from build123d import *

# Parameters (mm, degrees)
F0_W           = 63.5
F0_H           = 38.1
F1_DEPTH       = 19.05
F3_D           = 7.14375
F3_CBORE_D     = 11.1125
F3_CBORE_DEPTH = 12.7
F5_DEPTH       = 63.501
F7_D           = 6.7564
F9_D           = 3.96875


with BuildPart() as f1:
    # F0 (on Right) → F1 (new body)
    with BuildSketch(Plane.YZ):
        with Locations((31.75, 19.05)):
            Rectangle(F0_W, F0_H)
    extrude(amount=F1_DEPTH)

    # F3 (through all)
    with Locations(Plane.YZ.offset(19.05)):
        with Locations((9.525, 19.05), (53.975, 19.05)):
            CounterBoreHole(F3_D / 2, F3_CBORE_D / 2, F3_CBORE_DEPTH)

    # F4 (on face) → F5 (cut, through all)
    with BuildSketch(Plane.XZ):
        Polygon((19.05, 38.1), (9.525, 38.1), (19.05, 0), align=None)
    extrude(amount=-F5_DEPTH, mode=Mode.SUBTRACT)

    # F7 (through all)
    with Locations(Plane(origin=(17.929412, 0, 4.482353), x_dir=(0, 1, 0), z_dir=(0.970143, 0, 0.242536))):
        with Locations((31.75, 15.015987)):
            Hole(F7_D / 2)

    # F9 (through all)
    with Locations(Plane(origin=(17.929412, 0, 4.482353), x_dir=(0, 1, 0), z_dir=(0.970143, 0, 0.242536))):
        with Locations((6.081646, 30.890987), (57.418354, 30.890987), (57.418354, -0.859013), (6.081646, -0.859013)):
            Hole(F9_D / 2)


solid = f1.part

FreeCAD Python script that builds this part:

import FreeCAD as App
import Part
import Sketcher

V = App.Vector
Q = App.Units.Quantity


def add_polygon(sketch, points):
    """Adds a closed chain of lines whose ends are joined by coincident constraints."""
    first, n = sketch.GeometryCount, len(points)
    for a, b in zip(points, points[1:] + points[:1]):
        sketch.addGeometry(Part.LineSegment(App.Vector(*a, 0), App.Vector(*b, 0)), False)
    for i in range(n):
        sketch.addConstraint(Sketcher.Constraint("Coincident", first + i, 2, first + (i + 1) % n, 1))

doc = App.newDocument("Part")
body = doc.addObject("PartDesign::Body", "Body")

sketch1 = doc.addObject("Sketcher::SketchObject", "Sketch")
body.addObject(sketch1)
sketch1.AttachmentSupport = (doc.YZ_Plane, [""])
sketch1.MapMode = "FlatFace"
add_polygon(sketch1, [(0, 38), (0, 0), (64, 0), (64, 38)])
sketch1.addConstraint(Sketcher.Constraint("Vertical", 0))
sketch1.addConstraint(Sketcher.Constraint("Horizontal", 1))
sketch1.addConstraint(Sketcher.Constraint("Vertical", 2))
sketch1.addConstraint(Sketcher.Constraint("Horizontal", 3))
sketch1.addConstraint(Sketcher.Constraint("Coincident", 0, 2, -1, 1))
sketch1.addConstraint(Sketcher.Constraint("DistanceX", 1, 1, 1, 2, Q("2.5 in")))
sketch1.addConstraint(Sketcher.Constraint("DistanceY", 0, 2, 0, 1, Q("1.5 in")))
pad1 = doc.addObject("PartDesign::Pad", "Pad")
body.addObject(pad1)
pad1.Profile = sketch1
pad1.Length = Q("0.75 in")

sketch2 = doc.addObject("Sketcher::SketchObject", "Sketch001")
body.addObject(sketch2)
sketch2.AttachmentSupport = (doc.YZ_Plane, [""])
sketch2.MapMode = "FlatFace"
sketch2.AttachmentOffset = App.Placement(V(0, 0, 0.75 * 25.4), App.Rotation())
sketch2.addGeometry(Part.Circle(V(9.5, 19.1, 0), V(0, 0, 1), 3.6), False)
sketch2.addGeometry(Part.Circle(V(54, 19.1, 0), V(0, 0, 1), 3.6), False)
sketch2.addConstraint(Sketcher.Constraint("Equal", 0, 1))
sketch2.addConstraint(Sketcher.Constraint("Horizontal", 0, 3, 1, 3))
sketch2.addConstraint(Sketcher.Constraint("Diameter", 0, Q("0.28125 in")))
sketch2.addConstraint(Sketcher.Constraint("DistanceY", -1, 1, 0, 3, Q("0.75 in")))
sketch2.addConstraint(Sketcher.Constraint("DistanceX", 0, 3, 1, 3, Q("1.75 in")))
sketch2.addConstraint(Sketcher.Constraint("DistanceX", -1, 1, 0, 3, Q("0.375 in")))
doc.recompute()
hole = doc.addObject("PartDesign::Hole", "Hole")
body.addObject(hole)
hole.Profile = sketch2
hole.ThreadType = "None"
hole.Diameter = Q("0.28125 in")
hole.DepthType = "ThroughAll"
hole.HoleCutType = "Counterbore"
hole.HoleCutDiameter = Q("0.4375 in")
hole.HoleCutDepth = Q("0.5 in")

sketch3 = doc.addObject("Sketcher::SketchObject", "Sketch002")
body.addObject(sketch3)
sketch3.AttachmentSupport = (doc.XZ_Plane, [""])
sketch3.MapMode = "FlatFace"
add_polygon(sketch3, [(19, 38), (10, 38), (19, 0)])
sketch3.addConstraint(Sketcher.Constraint("Horizontal", 0))
sketch3.addConstraint(Sketcher.Constraint("Vertical", 2))
sketch3.addConstraint(Sketcher.Constraint("PointOnObject", 1, 2, -1))
sketch3.addConstraint(Sketcher.Constraint("DistanceY", 2, 1, 2, 2, Q("1.5 in")))
sketch3.addConstraint(Sketcher.Constraint("DistanceX", 0, 2, 0, 1, Q("0.375 in")))
sketch3.addConstraint(Sketcher.Constraint("DistanceX", -1, 1, 1, 2, Q("0.75 in")))
pocket1 = doc.addObject("PartDesign::Pocket", "Pocket")
body.addObject(pocket1)
pocket1.Profile = sketch3
pocket1.Type = "ThroughAll"

sketch4 = doc.addObject("Sketcher::SketchObject", "Sketch003")
body.addObject(sketch4)
sketch4.Placement = App.Placement(V(17.929411, 0, 4.482357), App.Rotation(V(0, 1, 0), V(-0.24253586, 0, 0.970142441), V(0.970142441, 0, 0.24253586), "ZXY"))
sketch4.addGeometry(Part.Circle(V(31.8, 15, 0), V(0, 0, 1), 3.4), False)
sketch4.addConstraint(Sketcher.Constraint("Diameter", 0, Q("0.266 in")))
sketch4.addConstraint(Sketcher.Constraint("DistanceX", -1, 1, 0, 3, Q("1.25 in")))
sketch4.addConstraint(Sketcher.Constraint("DistanceY", -1, 1, 0, 3, 15.015983))
doc.recompute()
hole2 = doc.addObject("PartDesign::Hole", "Hole001")
body.addObject(hole2)
hole2.Profile = sketch4
hole2.ThreadType = "None"
hole2.Diameter = Q("0.266 in")
hole2.DepthType = "ThroughAll"

sketch5 = doc.addObject("Sketcher::SketchObject", "Sketch004")
body.addObject(sketch5)
sketch5.Placement = App.Placement(V(17.929411, 0, 4.482357), App.Rotation(V(0, 1, 0), V(-0.24253586, 0, 0.970142441), V(0.970142441, 0, 0.24253586), "ZXY"))
sketch5.addGeometry(Part.Circle(V(6.1, 30.9, 0), V(0, 0, 1), 2), False)
sketch5.addGeometry(Part.Circle(V(57.4, 30.9, 0), V(0, 0, 1), 2), False)
sketch5.addGeometry(Part.Circle(V(57.4, -0.9, 0), V(0, 0, 1), 2), False)
sketch5.addGeometry(Part.Circle(V(6.1, -0.9, 0), V(0, 0, 1), 2), False)
sketch5.addConstraint(Sketcher.Constraint("Equal", 0, 1))
sketch5.addConstraint(Sketcher.Constraint("Equal", 1, 2))
sketch5.addConstraint(Sketcher.Constraint("Equal", 2, 3))
sketch5.addConstraint(Sketcher.Constraint("Horizontal", 0, 3, 1, 3))
sketch5.addConstraint(Sketcher.Constraint("Horizontal", 2, 3, 3, 3))
sketch5.addConstraint(Sketcher.Constraint("Vertical", 1, 3, 2, 3))
sketch5.addConstraint(Sketcher.Constraint("Vertical", 0, 3, 3, 3))
sketch5.addConstraint(Sketcher.Constraint("Diameter", 0, Q("0.15625 in")))
sketch5.addConstraint(Sketcher.Constraint("DistanceY", 2, 3, 1, 3, Q("1.25 in")))
sketch5.addConstraint(Sketcher.Constraint("DistanceX", 0, 3, 1, 3, 51.336708))
sketch5.addConstraint(Sketcher.Constraint("DistanceX", -1, 1, 0, 3, 6.081646))
sketch5.addConstraint(Sketcher.Constraint("DistanceY", -1, 1, 0, 3, 30.890982))
doc.recompute()
hole3 = doc.addObject("PartDesign::Hole", "Hole002")
body.addObject(hole3)
hole3.Profile = sketch5
hole3.ThreadType = "None"
hole3.Diameter = Q("0.15625 in")
hole3.DepthType = "ThroughAll"

doc.recompute()
